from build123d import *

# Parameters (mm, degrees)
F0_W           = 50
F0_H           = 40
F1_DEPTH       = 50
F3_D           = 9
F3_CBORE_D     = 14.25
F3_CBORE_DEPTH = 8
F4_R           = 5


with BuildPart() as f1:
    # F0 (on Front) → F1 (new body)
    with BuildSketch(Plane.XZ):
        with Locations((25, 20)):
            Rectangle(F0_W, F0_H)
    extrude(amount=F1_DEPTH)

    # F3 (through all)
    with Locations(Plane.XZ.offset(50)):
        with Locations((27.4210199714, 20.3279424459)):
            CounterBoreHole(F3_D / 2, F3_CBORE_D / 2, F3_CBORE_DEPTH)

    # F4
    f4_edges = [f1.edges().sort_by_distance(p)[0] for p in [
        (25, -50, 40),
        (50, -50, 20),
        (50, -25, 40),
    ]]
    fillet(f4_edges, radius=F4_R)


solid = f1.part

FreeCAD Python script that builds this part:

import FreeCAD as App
import Part
import Sketcher

V = App.Vector
Q = App.Units.Quantity


def edges_at(feature, points):
    """Names of the edges that pass closest to the given points."""
    edges = feature.Shape.Edges
    near = lambda p: min(range(len(edges)), key=lambda i: edges[i].distToShape(Part.Vertex(*p))[0])
    return sorted({f"Edge{near(p) + 1}" for p in points})

doc = App.newDocument("Part")
body = doc.addObject("PartDesign::Body", "Body")

# Sketch on XZ plane
sketch1 = body.newObject("Sketcher::SketchObject", "Sketch")
sketch1.AttachmentSupport = (doc.getObject("XZ_Plane"), [""])
sketch1.MapMode = "FlatFace"
sketch1.addGeometry(Part.LineSegment(V(0, 40, 0), V(0, 0, 0)), False)
sketch1.addGeometry(Part.LineSegment(V(0, 0, 0), V(50, 0, 0)), False)
sketch1.addGeometry(Part.LineSegment(V(50, 0, 0), V(50, 40, 0)), False)
sketch1.addGeometry(Part.LineSegment(V(50, 40, 0), V(0, 40, 0)), False)
sketch1.addConstraint(Sketcher.Constraint("Coincident", 0, 2, 1, 1))
sketch1.addConstraint(Sketcher.Constraint("Coincident", 1, 2, 2, 1))
sketch1.addConstraint(Sketcher.Constraint("Coincident", 2, 2, 3, 1))
sketch1.addConstraint(Sketcher.Constraint("Coincident", 3, 2, 0, 1))
sketch1.addConstraint(Sketcher.Constraint("Vertical", 0))
sketch1.addConstraint(Sketcher.Constraint("Horizontal", 1))
sketch1.addConstraint(Sketcher.Constraint("Vertical", 2))
sketch1.addConstraint(Sketcher.Constraint("Horizontal", 3))
sketch1.addConstraint(Sketcher.Constraint("Coincident", 0, 2, -1, 1))
sketch1.addConstraint(Sketcher.Constraint("DistanceX", 1, 1, 1, 2, Q("50 mm")))
sketch1.addConstraint(Sketcher.Constraint("DistanceY", 0, 2, 0, 1, Q("40 mm")))
pad1 = body.newObject("PartDesign::Pad", "Pad")
pad1.Profile = sketch1
pad1.Length = 50

# Sketch on XZ plane
sketch2 = body.newObject("Sketcher::SketchObject", "Sketch001")
sketch2.AttachmentSupport = (doc.getObject("XZ_Plane"), [""])
sketch2.MapMode = "FlatFace"
sketch2.AttachmentOffset = App.Placement(V(0, 0, 50), App.Rotation())
sketch2.addGeometry(Part.Circle(V(27.42102, 20.327942, 0), V(0, 0, 1), 4.5), False)
sketch2.addConstraint(Sketcher.Constraint("Diameter", 0, Q("9 mm")))
sketch2.addConstraint(Sketcher.Constraint("DistanceX", -1, 1, 0, 3, Q("27.42102 mm")))
sketch2.addConstraint(Sketcher.Constraint("DistanceY", -1, 1, 0, 3, Q("20.327942 mm")))
doc.recompute()
hole = body.newObject("PartDesign::Hole", "Hole")
hole.Profile = sketch2
hole.ThreadType = "None"
hole.Diameter = 9
hole.DepthType = "ThroughAll"
hole.HoleCutType = "Counterbore"
hole.HoleCutDiameter = 14.25
hole.HoleCutDepth = 8
doc.recompute()

fillet = body.newObject("PartDesign::Fillet", "Fillet")
fillet.Base = (hole, edges_at(hole, [(25, -50, 40), (50, -50, 20), (50, -25, 40)]))
fillet.Radius = 5

doc.recompute()
